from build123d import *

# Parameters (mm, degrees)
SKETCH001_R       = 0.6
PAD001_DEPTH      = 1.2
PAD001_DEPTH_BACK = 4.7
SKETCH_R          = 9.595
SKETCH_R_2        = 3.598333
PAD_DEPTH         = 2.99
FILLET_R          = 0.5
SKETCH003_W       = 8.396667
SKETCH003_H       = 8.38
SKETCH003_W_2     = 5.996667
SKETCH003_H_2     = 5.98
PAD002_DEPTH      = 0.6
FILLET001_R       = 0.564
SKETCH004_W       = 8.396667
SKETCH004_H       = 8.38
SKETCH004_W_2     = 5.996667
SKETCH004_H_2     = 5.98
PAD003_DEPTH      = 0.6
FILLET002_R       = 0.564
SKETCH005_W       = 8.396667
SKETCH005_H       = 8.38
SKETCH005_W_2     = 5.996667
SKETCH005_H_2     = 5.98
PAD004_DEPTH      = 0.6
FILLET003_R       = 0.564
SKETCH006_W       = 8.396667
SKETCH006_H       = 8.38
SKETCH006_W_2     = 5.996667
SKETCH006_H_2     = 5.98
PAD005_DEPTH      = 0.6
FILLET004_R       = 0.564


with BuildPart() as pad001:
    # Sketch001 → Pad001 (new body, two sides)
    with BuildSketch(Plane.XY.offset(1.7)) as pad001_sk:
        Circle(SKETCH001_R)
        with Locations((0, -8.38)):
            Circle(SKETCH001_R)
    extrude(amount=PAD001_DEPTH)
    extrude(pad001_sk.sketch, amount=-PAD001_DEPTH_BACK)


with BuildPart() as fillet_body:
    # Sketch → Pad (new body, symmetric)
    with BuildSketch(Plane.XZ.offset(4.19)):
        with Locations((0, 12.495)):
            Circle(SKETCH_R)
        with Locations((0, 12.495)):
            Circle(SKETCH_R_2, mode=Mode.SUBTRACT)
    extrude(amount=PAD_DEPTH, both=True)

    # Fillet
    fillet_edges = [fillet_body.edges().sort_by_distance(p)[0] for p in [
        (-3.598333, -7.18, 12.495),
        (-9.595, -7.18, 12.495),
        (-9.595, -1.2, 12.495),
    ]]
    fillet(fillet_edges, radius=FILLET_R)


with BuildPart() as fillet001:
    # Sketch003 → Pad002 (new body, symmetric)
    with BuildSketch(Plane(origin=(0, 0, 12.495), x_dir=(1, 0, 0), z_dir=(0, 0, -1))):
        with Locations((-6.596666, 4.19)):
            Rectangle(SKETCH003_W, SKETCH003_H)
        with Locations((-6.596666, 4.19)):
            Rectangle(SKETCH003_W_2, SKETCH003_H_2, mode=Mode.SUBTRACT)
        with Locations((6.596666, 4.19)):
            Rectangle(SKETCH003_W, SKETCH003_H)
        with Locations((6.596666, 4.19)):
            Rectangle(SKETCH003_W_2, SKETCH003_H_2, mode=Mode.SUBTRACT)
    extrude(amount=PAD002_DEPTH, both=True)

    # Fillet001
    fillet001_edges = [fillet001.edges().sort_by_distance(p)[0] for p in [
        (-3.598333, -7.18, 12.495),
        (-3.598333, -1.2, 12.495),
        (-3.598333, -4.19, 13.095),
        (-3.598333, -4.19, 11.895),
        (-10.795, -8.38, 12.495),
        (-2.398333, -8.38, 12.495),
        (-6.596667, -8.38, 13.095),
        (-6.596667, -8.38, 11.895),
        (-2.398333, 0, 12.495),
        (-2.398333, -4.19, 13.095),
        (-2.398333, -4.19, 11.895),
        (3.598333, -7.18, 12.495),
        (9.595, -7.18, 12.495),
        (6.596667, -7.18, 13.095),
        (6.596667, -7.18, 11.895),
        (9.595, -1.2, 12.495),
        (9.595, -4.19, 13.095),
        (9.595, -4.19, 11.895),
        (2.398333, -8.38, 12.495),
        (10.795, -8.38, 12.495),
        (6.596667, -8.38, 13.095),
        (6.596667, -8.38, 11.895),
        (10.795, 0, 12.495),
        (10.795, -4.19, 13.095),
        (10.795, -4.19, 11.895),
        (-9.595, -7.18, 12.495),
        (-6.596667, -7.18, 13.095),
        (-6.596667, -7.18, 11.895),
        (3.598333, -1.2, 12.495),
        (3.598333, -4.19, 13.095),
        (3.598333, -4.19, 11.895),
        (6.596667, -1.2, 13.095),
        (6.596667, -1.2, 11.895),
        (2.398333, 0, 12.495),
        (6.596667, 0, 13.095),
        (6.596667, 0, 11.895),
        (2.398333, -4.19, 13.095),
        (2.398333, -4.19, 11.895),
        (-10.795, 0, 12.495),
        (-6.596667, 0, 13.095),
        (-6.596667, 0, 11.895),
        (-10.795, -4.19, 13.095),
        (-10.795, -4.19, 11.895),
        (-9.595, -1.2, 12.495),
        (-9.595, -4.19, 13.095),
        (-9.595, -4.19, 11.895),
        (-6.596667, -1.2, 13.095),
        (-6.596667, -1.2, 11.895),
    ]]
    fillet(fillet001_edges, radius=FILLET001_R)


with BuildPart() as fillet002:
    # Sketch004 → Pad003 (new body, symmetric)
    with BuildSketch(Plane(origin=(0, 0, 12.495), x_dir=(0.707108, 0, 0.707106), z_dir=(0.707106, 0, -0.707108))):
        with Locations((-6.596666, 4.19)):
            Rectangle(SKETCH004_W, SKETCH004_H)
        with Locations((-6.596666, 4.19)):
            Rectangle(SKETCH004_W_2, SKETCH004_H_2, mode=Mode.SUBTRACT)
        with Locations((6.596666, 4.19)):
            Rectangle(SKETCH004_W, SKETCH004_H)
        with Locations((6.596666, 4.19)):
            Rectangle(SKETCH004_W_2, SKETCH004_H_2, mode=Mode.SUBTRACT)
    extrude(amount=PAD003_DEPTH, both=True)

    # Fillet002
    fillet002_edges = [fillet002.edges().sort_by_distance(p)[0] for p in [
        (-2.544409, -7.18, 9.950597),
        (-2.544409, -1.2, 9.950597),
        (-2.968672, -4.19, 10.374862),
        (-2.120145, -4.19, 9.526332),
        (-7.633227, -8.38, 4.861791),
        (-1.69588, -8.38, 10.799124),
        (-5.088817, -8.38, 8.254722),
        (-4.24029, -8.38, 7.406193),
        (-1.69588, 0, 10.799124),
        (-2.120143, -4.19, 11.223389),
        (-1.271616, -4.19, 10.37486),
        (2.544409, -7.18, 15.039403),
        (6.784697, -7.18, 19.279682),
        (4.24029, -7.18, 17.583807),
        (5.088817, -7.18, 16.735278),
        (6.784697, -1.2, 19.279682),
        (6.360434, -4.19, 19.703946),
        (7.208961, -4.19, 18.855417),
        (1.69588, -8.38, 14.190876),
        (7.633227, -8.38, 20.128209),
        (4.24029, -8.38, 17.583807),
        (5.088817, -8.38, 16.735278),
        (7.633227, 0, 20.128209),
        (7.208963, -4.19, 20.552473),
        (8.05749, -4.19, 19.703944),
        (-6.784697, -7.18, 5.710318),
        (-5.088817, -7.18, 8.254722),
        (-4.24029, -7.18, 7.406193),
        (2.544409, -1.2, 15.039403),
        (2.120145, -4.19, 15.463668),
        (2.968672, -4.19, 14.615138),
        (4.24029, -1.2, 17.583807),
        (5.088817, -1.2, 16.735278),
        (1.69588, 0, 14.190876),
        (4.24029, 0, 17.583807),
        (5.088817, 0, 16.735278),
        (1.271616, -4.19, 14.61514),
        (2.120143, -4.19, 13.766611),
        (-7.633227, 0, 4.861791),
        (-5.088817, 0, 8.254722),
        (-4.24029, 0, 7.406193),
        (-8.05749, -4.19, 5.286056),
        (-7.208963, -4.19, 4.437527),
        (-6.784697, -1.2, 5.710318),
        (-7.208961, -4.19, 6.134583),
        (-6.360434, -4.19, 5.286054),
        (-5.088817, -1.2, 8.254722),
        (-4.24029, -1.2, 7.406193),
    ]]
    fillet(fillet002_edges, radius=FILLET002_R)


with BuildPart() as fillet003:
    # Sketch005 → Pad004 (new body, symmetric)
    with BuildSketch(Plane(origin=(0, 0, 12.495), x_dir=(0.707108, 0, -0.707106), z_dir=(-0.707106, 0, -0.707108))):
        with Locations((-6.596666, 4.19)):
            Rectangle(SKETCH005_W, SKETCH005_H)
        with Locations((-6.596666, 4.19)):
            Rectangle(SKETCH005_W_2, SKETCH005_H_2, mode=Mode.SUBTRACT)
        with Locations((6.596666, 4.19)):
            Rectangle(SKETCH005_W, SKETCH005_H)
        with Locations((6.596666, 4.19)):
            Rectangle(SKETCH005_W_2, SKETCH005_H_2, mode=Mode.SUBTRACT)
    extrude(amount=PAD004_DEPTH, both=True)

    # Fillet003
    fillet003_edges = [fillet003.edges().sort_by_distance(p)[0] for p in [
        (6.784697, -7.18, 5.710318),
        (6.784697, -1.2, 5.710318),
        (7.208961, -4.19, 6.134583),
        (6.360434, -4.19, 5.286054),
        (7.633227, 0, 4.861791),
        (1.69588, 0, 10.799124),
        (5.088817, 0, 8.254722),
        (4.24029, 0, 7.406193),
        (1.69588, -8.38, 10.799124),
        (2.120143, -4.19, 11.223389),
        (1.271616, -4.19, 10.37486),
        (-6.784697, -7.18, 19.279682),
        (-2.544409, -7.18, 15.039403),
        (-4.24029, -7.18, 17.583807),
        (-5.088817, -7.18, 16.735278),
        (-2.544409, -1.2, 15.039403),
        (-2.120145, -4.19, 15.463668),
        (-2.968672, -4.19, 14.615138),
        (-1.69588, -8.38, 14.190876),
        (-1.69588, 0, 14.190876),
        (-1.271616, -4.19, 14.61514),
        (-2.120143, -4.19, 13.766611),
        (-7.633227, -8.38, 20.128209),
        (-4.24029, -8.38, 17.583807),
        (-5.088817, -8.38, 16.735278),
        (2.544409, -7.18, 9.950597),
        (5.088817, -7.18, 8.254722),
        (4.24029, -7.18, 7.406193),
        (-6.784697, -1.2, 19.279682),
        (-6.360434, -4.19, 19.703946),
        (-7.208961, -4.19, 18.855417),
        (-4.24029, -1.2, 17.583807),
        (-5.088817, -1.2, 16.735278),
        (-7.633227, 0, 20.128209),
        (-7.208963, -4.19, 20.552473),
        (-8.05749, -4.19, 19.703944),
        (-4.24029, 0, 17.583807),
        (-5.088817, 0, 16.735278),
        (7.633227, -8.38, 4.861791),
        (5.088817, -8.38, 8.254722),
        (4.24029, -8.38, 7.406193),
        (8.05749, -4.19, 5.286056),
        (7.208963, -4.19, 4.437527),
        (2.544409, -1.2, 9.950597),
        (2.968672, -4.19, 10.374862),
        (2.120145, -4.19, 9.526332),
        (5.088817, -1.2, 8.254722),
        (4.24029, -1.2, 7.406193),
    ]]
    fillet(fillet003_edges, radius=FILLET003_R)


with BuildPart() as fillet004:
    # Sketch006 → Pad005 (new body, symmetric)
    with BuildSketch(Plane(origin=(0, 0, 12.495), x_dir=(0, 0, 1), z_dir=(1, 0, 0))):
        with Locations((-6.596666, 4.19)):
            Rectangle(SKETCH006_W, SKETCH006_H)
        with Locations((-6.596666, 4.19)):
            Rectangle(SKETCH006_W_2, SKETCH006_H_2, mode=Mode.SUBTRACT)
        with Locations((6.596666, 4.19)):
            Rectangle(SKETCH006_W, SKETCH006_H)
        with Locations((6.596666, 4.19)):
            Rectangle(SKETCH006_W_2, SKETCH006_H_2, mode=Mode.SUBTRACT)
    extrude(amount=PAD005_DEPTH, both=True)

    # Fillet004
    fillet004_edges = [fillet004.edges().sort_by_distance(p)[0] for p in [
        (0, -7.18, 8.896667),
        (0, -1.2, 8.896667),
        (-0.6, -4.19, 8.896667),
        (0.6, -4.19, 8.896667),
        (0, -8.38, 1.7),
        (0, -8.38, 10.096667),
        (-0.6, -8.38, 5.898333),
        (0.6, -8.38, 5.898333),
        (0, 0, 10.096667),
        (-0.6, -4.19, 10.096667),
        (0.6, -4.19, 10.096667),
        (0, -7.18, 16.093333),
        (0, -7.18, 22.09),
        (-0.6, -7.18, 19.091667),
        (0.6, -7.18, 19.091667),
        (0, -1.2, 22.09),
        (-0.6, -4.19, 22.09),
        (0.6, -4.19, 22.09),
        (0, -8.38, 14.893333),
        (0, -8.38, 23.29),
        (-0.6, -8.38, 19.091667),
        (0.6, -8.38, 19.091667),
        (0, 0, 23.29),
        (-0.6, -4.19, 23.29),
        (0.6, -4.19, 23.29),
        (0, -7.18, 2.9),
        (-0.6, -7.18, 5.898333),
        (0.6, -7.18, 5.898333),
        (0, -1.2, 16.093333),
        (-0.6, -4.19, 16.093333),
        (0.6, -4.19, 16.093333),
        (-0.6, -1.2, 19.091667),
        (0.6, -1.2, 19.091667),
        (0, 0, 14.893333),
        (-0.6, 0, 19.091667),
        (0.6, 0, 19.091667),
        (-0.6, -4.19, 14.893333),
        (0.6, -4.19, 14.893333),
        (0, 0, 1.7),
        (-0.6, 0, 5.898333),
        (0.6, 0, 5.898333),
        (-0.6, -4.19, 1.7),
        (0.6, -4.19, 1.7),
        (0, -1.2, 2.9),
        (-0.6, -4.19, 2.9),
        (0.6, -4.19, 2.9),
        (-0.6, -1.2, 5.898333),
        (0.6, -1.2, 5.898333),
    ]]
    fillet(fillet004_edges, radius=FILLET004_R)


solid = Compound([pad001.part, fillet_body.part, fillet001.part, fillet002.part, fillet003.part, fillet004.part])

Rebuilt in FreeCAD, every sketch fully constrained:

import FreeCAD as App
import Part
import Sketcher

V = App.Vector


def edges_at(feature, points):
    """Names of the edges that pass closest to the given points."""
    edges = feature.Shape.Edges
    near = lambda p: min(range(len(edges)), key=lambda i: edges[i].distToShape(Part.Vertex(*p))[0])
    return sorted({f"Edge{near(p) + 1}" for p in points})


def add_polygon(sketch, points):
    """Adds a closed chain of lines whose ends are joined by coincident constraints."""
    first, n = sketch.GeometryCount, len(points)
    for a, b in zip(points, points[1:] + points[:1]):
        sketch.addGeometry(Part.LineSegment(App.Vector(*a, 0), App.Vector(*b, 0)), False)
    for i in range(n):
        sketch.addConstraint(Sketcher.Constraint("Coincident", first + i, 2, first + (i + 1) % n, 1))

doc = App.newDocument("Part")
body = doc.addObject("PartDesign::Body", "Body")
body.AllowCompound = True

sketch1 = body.newObject("Sketcher::SketchObject", "Sketch")
sketch1.AttachmentSupport = (doc.getObject("XY_Plane"), [""])
sketch1.MapMode = "FlatFace"
sketch1.AttachmentOffset = App.Placement(V(0, 0, 1.7), App.Rotation())
sketch1.addGeometry(Part.Circle(V(0, 0, 0), V(0, 0, 1), 0.6), False)
sketch1.addGeometry(Part.Circle(V(0, -8.4, 0), V(0, 0, 1), 0.6), False)
sketch1.addConstraint(Sketcher.Constraint("Coincident", 0, 3, -1, 1))
sketch1.addConstraint(Sketcher.Constraint("Equal", 0, 1))
sketch1.addConstraint(Sketcher.Constraint("PointOnObject", 1, 3, -2))
sketch1.addConstraint(Sketcher.Constraint("Diameter", 0, 1.2))
sketch1.addConstraint(Sketcher.Constraint("DistanceY", 1, 3, -1, 1, 8.38))
pad1 = body.newObject("PartDesign::Pad", "Pad")
pad1.Profile = sketch1
pad1.Type = "TwoLengths"
pad1.Length = 1.2
pad1.Length2 = 4.7
body2 = doc.addObject("PartDesign::Body", "Body001")

sketch2 = body2.newObject("Sketcher::SketchObject", "Sketch001")
sketch2.AttachmentSupport = (doc.getObject("XZ_Plane001"), [""])
sketch2.MapMode = "FlatFace"
sketch2.AttachmentOffset = App.Placement(V(0, 0, 4.19), App.Rotation())
sketch2.addGeometry(Part.Circle(V(0, 12.5, 0), V(0, 0, 1), 9.6), False)
sketch2.addGeometry(Part.Circle(V(0, 12.5, 0), V(0, 0, 1), 3.6), False)
sketch2.addConstraint(Sketcher.Constraint("Coincident", 1, 3, 0, 3))
sketch2.addConstraint(Sketcher.Constraint("PointOnObject", 0, 3, -2))
sketch2.addConstraint(Sketcher.Constraint("Diameter", 0, 19.19))
sketch2.addConstraint(Sketcher.Constraint("Diameter", 1, 7.196666))
sketch2.addConstraint(Sketcher.Constraint("DistanceY", -1, 1, 0, 3, 12.495))
pad2 = body2.newObject("PartDesign::Pad", "Pad001")
pad2.Profile = sketch2
pad2.Length = 5.98
pad2.Midplane = True
doc.recompute()

fillet = body2.newObject("PartDesign::Fillet", "Fillet")
fillet.Base = (pad2, edges_at(pad2, [(-3.598, -7.18, 12.495), (-9.595, -7.18, 12.495), (-9.595, -1.2, 12.495)]))
fillet.Radius = 0.5
body3 = doc.addObject("PartDesign::Body", "Body002")
body3.AllowCompound = True

sketch3 = body3.newObject("Sketcher::SketchObject", "Sketch002")
sketch3.AttachmentSupport = (doc.getObject("XY_Plane002"), [""])
sketch3.MapMode = "FlatFace"
sketch3.AttachmentOffset = App.Placement(V(0, 0, 12.495), App.Rotation())
add_polygon(sketch3, [(-11, -8), (-11, 0), (-2, 0), (-2, -8)])
add_polygon(sketch3, [(-4, -1), (-10, -1), (-10, -7), (-4, -7)])
add_polygon(sketch3, [(2, -8), (2, 0), (11, 0), (11, -8)])
add_polygon(sketch3, [(10, -1), (4, -1), (4, -7), (10, -7)])
sketch3.addConstraint(Sketcher.Constraint("Vertical", 0))
sketch3.addConstraint(Sketcher.Constraint("Horizontal", 1))
sketch3.addConstraint(Sketcher.Constraint("Vertical", 2))
sketch3.addConstraint(Sketcher.Constraint("Horizontal", 3))
sketch3.addConstraint(Sketcher.Constraint("Horizontal", 4))
sketch3.addConstraint(Sketcher.Constraint("Vertical", 5))
sketch3.addConstraint(Sketcher.Constraint("Horizontal", 6))
sketch3.addConstraint(Sketcher.Constraint("Vertical", 7))
sketch3.addConstraint(Sketcher.Constraint("Vertical", 8))
sketch3.addConstraint(Sketcher.Constraint("Horizontal", 9))
sketch3.addConstraint(Sketcher.Constraint("Vertical", 10))
sketch3.addConstraint(Sketcher.Constraint("Horizontal", 11))
sketch3.addConstraint(Sketcher.Constraint("Horizontal", 12))
sketch3.addConstraint(Sketcher.Constraint("Vertical", 13))
sketch3.addConstraint(Sketcher.Constraint("Horizontal", 14))
sketch3.addConstraint(Sketcher.Constraint("Vertical", 15))
sketch3.addConstraint(Sketcher.Constraint("Symmetric", 1, 2, 8, 2, -1, 1))
sketch3.addConstraint(Sketcher.Constraint("Symmetric", 0, 2, 9, 2, -2))
sketch3.addConstraint(Sketcher.Constraint("Symmetric", 7, 2, 12, 2, -2))
sketch3.addConstraint(Sketcher.Constraint("Symmetric", 5, 2, 14, 2, -2))
sketch3.addConstraint(Sketcher.Constraint("Horizontal", 3, 2, 10, 2))
sketch3.addConstraint(Sketcher.Constraint("DistanceY", 0, 1, 0, 2, 8.38))
sketch3.addConstraint(Sketcher.Constraint("DistanceY", 5, 2, 5, 1, 5.98))
sketch3.addConstraint(Sketcher.Constraint("DistanceY", 4, 2, -1, 1, 1.2))
sketch3.addConstraint(Sketcher.Constraint("DistanceX", 0, 2, 4, 2, 1.2))
sketch3.addConstraint(Sketcher.Constraint("DistanceX", 6, 2, 2, 2, 1.2))
sketch3.addConstraint(Sketcher.Constraint("DistanceX", 0, 2, -1, 1, 10.794999))
sketch3.addConstraint(Sketcher.Constraint("DistanceX", 1, 1, 1, 2, 8.396667))
pad3 = body3.newObject("PartDesign::Pad", "Pad002")
pad3.Profile = sketch3
pad3.Length = 1.2
pad3.Midplane = True
doc.recompute()

fillet2 = body3.newObject("PartDesign::Fillet", "Fillet001")
fillet2.Base = (pad3, ["Edge1"])
fillet2.UseAllEdges = True
fillet2.Radius = 0.564
body4 = doc.addObject("PartDesign::Body", "Body003")
body4.AllowCompound = True

sketch4 = body4.newObject("Sketcher::SketchObject", "Sketch003")
sketch4.Placement = App.Placement(V(0, 0, 12.495), App.Rotation(V(0.707107781, 0, 0.707105781), V(0, -0.999999999, 0), V(0.707105781, 0, -0.707107781), "ZXY"))
add_polygon(sketch4, [(-11, 8), (-11, 0), (-2, 0), (-2, 8)])
add_polygon(sketch4, [(-4, 1), (-10, 1), (-10, 7), (-4, 7)])
add_polygon(sketch4, [(2, 8), (2, 0), (11, 0), (11, 8)])
add_polygon(sketch4, [(10, 1), (4, 1), (4, 7), (10, 7)])
sketch4.addConstraint(Sketcher.Constraint("Vertical", 0))
sketch4.addConstraint(Sketcher.Constraint("Horizontal", 1))
sketch4.addConstraint(Sketcher.Constraint("Vertical", 2))
sketch4.addConstraint(Sketcher.Constraint("Horizontal", 3))
sketch4.addConstraint(Sketcher.Constraint("Horizontal", 4))
sketch4.addConstraint(Sketcher.Constraint("Vertical", 5))
sketch4.addConstraint(Sketcher.Constraint("Horizontal", 6))
sketch4.addConstraint(Sketcher.Constraint("Vertical", 7))
sketch4.addConstraint(Sketcher.Constraint("Vertical", 8))
sketch4.addConstraint(Sketcher.Constraint("Horizontal", 9))
sketch4.addConstraint(Sketcher.Constraint("Vertical", 10))
sketch4.addConstraint(Sketcher.Constraint("Horizontal", 11))
sketch4.addConstraint(Sketcher.Constraint("Horizontal", 12))
sketch4.addConstraint(Sketcher.Constraint("Vertical", 13))
sketch4.addConstraint(Sketcher.Constraint("Horizontal", 14))
sketch4.addConstraint(Sketcher.Constraint("Vertical", 15))
sketch4.addConstraint(Sketcher.Constraint("Symmetric", 1, 2, 8, 2, -1, 1))
sketch4.addConstraint(Sketcher.Constraint("Symmetric", 0, 2, 9, 2, -2))
sketch4.addConstraint(Sketcher.Constraint("Symmetric", 7, 2, 12, 2, -2))
sketch4.addConstraint(Sketcher.Constraint("Symmetric", 5, 2, 14, 2, -2))
sketch4.addConstraint(Sketcher.Constraint("Horizontal", 3, 2, 10, 2))
sketch4.addConstraint(Sketcher.Constraint("DistanceY", 0, 2, 0, 1, 8.38))
sketch4.addConstraint(Sketcher.Constraint("DistanceY", 5, 1, 5, 2, 5.98))
sketch4.addConstraint(Sketcher.Constraint("DistanceY", -1, 1, 4, 2, 1.2))
sketch4.addConstraint(Sketcher.Constraint("DistanceX", 0, 2, 4, 2, 1.2))
sketch4.addConstraint(Sketcher.Constraint("DistanceX", 6, 2, 2, 2, 1.2))
sketch4.addConstraint(Sketcher.Constraint("DistanceX", 0, 2, -1, 1, 10.794999))
sketch4.addConstraint(Sketcher.Constraint("DistanceX", 1, 1, 1, 2, 8.396667))
pad4 = body4.newObject("PartDesign::Pad", "Pad003")
pad4.Profile = sketch4
pad4.Length = 1.2
pad4.Midplane = True
doc.recompute()

fillet3 = body4.newObject("PartDesign::Fillet", "Fillet002")
fillet3.Base = (pad4, ["Edge1"])
fillet3.UseAllEdges = True
fillet3.Radius = 0.564
body5 = doc.addObject("PartDesign::Body", "Body004")
body5.AllowCompound = True

sketch5 = body5.newObject("Sketcher::SketchObject", "Sketch004")
sketch5.Placement = App.Placement(V(0, 0, 12.495), App.Rotation(V(0.707107781, 0, -0.707105781), V(0, -0.999999999, 0), V(-0.707105781, 0, -0.707107781), "ZXY"))
add_polygon(sketch5, [(-11, 8), (-11, 0), (-2, 0), (-2, 8)])
add_polygon(sketch5, [(-4, 1), (-10, 1), (-10, 7), (-4, 7)])
add_polygon(sketch5, [(2, 8), (2, 0), (11, 0), (11, 8)])
add_polygon(sketch5, [(10, 1), (4, 1), (4, 7), (10, 7)])
sketch5.addConstraint(Sketcher.Constraint("Vertical", 0))
sketch5.addConstraint(Sketcher.Constraint("Horizontal", 1))
sketch5.addConstraint(Sketcher.Constraint("Vertical", 2))
sketch5.addConstraint(Sketcher.Constraint("Horizontal", 3))
sketch5.addConstraint(Sketcher.Constraint("Horizontal", 4))
sketch5.addConstraint(Sketcher.Constraint("Vertical", 5))
sketch5.addConstraint(Sketcher.Constraint("Horizontal", 6))
sketch5.addConstraint(Sketcher.Constraint("Vertical", 7))
sketch5.addConstraint(Sketcher.Constraint("Vertical", 8))
sketch5.addConstraint(Sketcher.Constraint("Horizontal", 9))
sketch5.addConstraint(Sketcher.Constraint("Vertical", 10))
sketch5.addConstraint(Sketcher.Constraint("Horizontal", 11))
sketch5.addConstraint(Sketcher.Constraint("Horizontal", 12))
sketch5.addConstraint(Sketcher.Constraint("Vertical", 13))
sketch5.addConstraint(Sketcher.Constraint("Horizontal", 14))
sketch5.addConstraint(Sketcher.Constraint("Vertical", 15))
sketch5.addConstraint(Sketcher.Constraint("Symmetric", 1, 2, 8, 2, -1, 1))
sketch5.addConstraint(Sketcher.Constraint("Symmetric", 0, 2, 9, 2, -2))
sketch5.addConstraint(Sketcher.Constraint("Symmetric", 7, 2, 12, 2, -2))
sketch5.addConstraint(Sketcher.Constraint("Symmetric", 5, 2, 14, 2, -2))
sketch5.addConstraint(Sketcher.Constraint("Horizontal", 3, 2, 10, 2))
sketch5.addConstraint(Sketcher.Constraint("DistanceY", 0, 2, 0, 1, 8.38))
sketch5.addConstraint(Sketcher.Constraint("DistanceY", 5, 1, 5, 2, 5.98))
sketch5.addConstraint(Sketcher.Constraint("DistanceY", -1, 1, 4, 2, 1.2))
sketch5.addConstraint(Sketcher.Constraint("DistanceX", 0, 2, 4, 2, 1.2))
sketch5.addConstraint(Sketcher.Constraint("DistanceX", 6, 2, 2, 2, 1.2))
sketch5.addConstraint(Sketcher.Constraint("DistanceX", 0, 2, -1, 1, 10.794999))
sketch5.addConstraint(Sketcher.Constraint("DistanceX", 1, 1, 1, 2, 8.396667))
pad5 = body5.newObject("PartDesign::Pad", "Pad004")
pad5.Profile = sketch5
pad5.Length = 1.2
pad5.Midplane = True
doc.recompute()

fillet4 = body5.newObject("PartDesign::Fillet", "Fillet003")
fillet4.Base = (pad5, ["Edge1"])
fillet4.UseAllEdges = True
fillet4.Radius = 0.564
body6 = doc.addObject("PartDesign::Body", "Body005")
body6.AllowCompound = True

sketch6 = body6.newObject("Sketcher::SketchObject", "Sketch005")
sketch6.AttachmentSupport = (doc.getObject("YZ_Plane005"), [""])
sketch6.MapMode = "FlatFace"
add_polygon(sketch6, [(-8, 2), (0, 2), (0, 10), (-8, 10)])
add_polygon(sketch6, [(-1, 9), (-1, 3), (-7, 3), (-7, 9)])
add_polygon(sketch6, [(-8, 15), (0, 15), (0, 23), (-8, 23)])
add_polygon(sketch6, [(-1, 22), (-1, 16), (-7, 16), (-7, 22)])
sketch6.addConstraint(Sketcher.Constraint("Horizontal", 0))
sketch6.addConstraint(Sketcher.Constraint("Vertical", 1))
sketch6.addConstraint(Sketcher.Constraint("Horizontal", 2))
sketch6.addConstraint(Sketcher.Constraint("Vertical", 3))
sketch6.addConstraint(Sketcher.Constraint("Vertical", 4))
sketch6.addConstraint(Sketcher.Constraint("Horizontal", 5))
sketch6.addConstraint(Sketcher.Constraint("Vertical", 6))
sketch6.addConstraint(Sketcher.Constraint("Horizontal", 7))
sketch6.addConstraint(Sketcher.Constraint("Horizontal", 8))
sketch6.addConstraint(Sketcher.Constraint("Vertical", 9))
sketch6.addConstraint(Sketcher.Constraint("Horizontal", 10))
sketch6.addConstraint(Sketcher.Constraint("Vertical", 11))
sketch6.addConstraint(Sketcher.Constraint("Vertical", 12))
sketch6.addConstraint(Sketcher.Constraint("Horizontal", 13))
sketch6.addConstraint(Sketcher.Constraint("Vertical", 14))
sketch6.addConstraint(Sketcher.Constraint("Horizontal", 15))
sketch6.addConstraint(Sketcher.Constraint("PointOnObject", 0, 2, -2))
sketch6.addConstraint(Sketcher.Constraint("PointOnObject", 8, 2, -2))
sketch6.addConstraint(Sketcher.Constraint("Vertical", 3, 2, 10, 2))
sketch6.addConstraint(Sketcher.Constraint("Vertical", 7, 2, 12, 2))
sketch6.addConstraint(Sketcher.Constraint("Vertical", 6, 2, 13, 2))
sketch6.addConstraint(Sketcher.Constraint("Equal", 3, 9))
sketch6.addConstraint(Sketcher.Constraint("Equal", 6, 12))
sketch6.addConstraint(Sketcher.Constraint("DistanceX", 0, 1, 0, 2, 8.38))
sketch6.addConstraint(Sketcher.Constraint("DistanceX", 5, 2, 5, 1, 5.98))
sketch6.addConstraint(Sketcher.Constraint("DistanceY", -1, 1, 0, 2, 1.700001))
sketch6.addConstraint(Sketcher.Constraint("DistanceX", 4, 2, -1, 1, 1.2))
sketch6.addConstraint(Sketcher.Constraint("DistanceY", -1, 1, 4, 2, 2.9))
sketch6.addConstraint(Sketcher.Constraint("DistanceY", 6, 2, 2, 2, 1.2))
sketch6.addConstraint(Sketcher.Constraint("DistanceY", 8, 2, 12, 2, 1.2))
sketch6.addConstraint(Sketcher.Constraint("DistanceY", -1, 1, 9, 2, 23.29))
sketch6.addConstraint(Sketcher.Constraint("DistanceY", 1, 1, 1, 2, 8.396667))
pad6 = body6.newObject("PartDesign::Pad", "Pad005")
pad6.Profile = sketch6
pad6.Length = 1.2
pad6.Midplane = True
doc.recompute()

fillet5 = body6.newObject("PartDesign::Fillet", "Fillet004")
fillet5.Base = (pad6, ["Edge1"])
fillet5.UseAllEdges = True
fillet5.Radius = 0.564

doc.recompute()
